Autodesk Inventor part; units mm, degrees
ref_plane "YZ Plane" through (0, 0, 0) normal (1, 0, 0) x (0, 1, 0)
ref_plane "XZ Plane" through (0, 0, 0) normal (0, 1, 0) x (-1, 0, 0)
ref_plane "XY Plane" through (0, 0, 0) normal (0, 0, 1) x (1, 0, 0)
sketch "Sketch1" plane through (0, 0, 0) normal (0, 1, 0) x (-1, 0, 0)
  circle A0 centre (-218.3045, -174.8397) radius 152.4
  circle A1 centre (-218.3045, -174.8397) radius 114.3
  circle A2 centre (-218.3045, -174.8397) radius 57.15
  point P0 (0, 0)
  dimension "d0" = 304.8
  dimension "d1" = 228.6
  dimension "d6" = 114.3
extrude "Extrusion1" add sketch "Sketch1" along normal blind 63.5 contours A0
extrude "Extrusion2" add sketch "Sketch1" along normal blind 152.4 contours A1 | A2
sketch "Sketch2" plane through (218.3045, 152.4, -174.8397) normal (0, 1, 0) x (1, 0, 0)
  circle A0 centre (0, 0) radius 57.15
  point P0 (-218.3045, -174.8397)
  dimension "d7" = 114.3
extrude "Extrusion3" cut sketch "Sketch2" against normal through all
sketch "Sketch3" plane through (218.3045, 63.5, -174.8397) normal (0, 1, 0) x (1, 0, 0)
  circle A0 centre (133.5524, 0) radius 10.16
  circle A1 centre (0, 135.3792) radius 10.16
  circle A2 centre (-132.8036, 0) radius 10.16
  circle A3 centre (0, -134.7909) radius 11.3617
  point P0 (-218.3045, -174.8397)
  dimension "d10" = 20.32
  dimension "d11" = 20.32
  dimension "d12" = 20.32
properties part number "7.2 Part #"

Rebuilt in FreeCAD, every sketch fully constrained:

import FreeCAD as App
import Part
import Sketcher
from FreeCAD import Vector
Q = App.Units.Quantity

doc = App.newDocument("Part")
body = doc.addObject("PartDesign::Body", "Body")

sketch1 = body.newObject("Sketcher::SketchObject", "Sketch")
sketch1.AttachmentSupport = (doc.getObject("XZ_Plane"), [""])
sketch1.MapMode = "FlatFace"
sketch1.addGeometry([
    Part.Circle(Vector(218.3045, -174.8397, 0), Vector(0, 0, 1), 152.4),
    Part.Circle(Vector(218.3045, -174.8397, 0), Vector(0, 0, 1), 114.3),
], False)
sketch1.addConstraint([
    Sketcher.Constraint("Coincident", 1, 3, 0, 3),
    Sketcher.Constraint("Diameter", 0, Q("12 in")),
    Sketcher.Constraint("Diameter", 1, Q("9 in")),
    Sketcher.Constraint("DistanceX", -1, 1, 0, 3, Q("218.3045 mm")),
    Sketcher.Constraint("DistanceY", 0, 3, -1, 1, Q("174.8397 mm")),
])
pad1 = body.newObject("PartDesign::Pad", "Pad")
pad1.Profile = sketch1
pad1.Length = Q("2.5 in")
pad1.Reversed = True

sketch2 = body.newObject("Sketcher::SketchObject", "Sketch001")
sketch2.AttachmentSupport = (doc.getObject("XZ_Plane"), [""])
sketch2.MapMode = "FlatFace"
sketch2.addGeometry(Part.Circle(Vector(218.3045, -174.8397, 0), Vector(0, 0, 1), 114.3), False)
sketch2.addConstraint([
    Sketcher.Constraint("Diameter", 0, Q("9 in")),
    Sketcher.Constraint("DistanceX", -1, 1, 0, 3, Q("218.3045 mm")),
    Sketcher.Constraint("DistanceY", 0, 3, -1, 1, Q("174.8397 mm")),
])
pad2 = body.newObject("PartDesign::Pad", "Pad001")
pad2.Profile = sketch2
pad2.Length = Q("6 in")
pad2.Reversed = True

sketch3 = body.newObject("Sketcher::SketchObject", "Sketch002")
sketch3.AttachmentSupport = (doc.getObject("XZ_Plane"), [""])
sketch3.MapMode = "FlatFace"
sketch3.AttachmentOffset = App.Placement(Vector(0, 0, -6 * 25.4), App.Rotation())
sketch3.addGeometry(Part.Circle(Vector(218.3045, -174.8397, 0), Vector(0, 0, 1), 57.15), False)
sketch3.addConstraint([
    Sketcher.Constraint("Diameter", 0, Q("4.5 in")),
    Sketcher.Constraint("DistanceX", -1, 1, 0, 3, Q("218.3045 mm")),
    Sketcher.Constraint("DistanceY", 0, 3, -1, 1, Q("174.8397 mm")),
])
pocket1 = body.newObject("PartDesign::Pocket", "Pocket")
pocket1.Profile = sketch3
pocket1.Type = "ThroughAll"
pocket1.Reversed = True

doc.recompute()
